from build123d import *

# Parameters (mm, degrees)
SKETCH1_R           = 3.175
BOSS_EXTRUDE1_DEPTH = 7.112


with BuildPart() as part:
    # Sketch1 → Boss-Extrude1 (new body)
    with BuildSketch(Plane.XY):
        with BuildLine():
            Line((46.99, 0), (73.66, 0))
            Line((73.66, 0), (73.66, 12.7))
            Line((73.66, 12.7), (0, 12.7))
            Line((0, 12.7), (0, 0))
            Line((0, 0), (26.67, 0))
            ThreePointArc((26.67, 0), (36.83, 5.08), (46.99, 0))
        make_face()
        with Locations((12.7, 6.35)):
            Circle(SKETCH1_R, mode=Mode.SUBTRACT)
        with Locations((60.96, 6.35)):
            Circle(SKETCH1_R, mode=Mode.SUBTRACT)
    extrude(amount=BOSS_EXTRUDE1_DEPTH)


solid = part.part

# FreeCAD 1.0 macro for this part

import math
import FreeCAD as App
import Part
import Sketcher

V = App.Vector
Q = App.Units.Quantity

doc = App.newDocument("Part")
params = doc.addObject("Spreadsheet::Sheet", "Params")
for row, (alias, value) in enumerate([
    ("sketch1_radius", "0.5 in"),
    ("sketch1_diameter", "0.25 in"),
    ("sketch1_width", "2.9 in"),
    ("sketch1_height", "0.5 in"),
    ("sketch1_width2", "1.05 in"),
    ("pad1_length", "0.28 in"),
], start=1):
    params.set(f"A{row}", alias)
    params.set(f"B{row}", "=" + value)
    params.setAlias(f"B{row}", alias)

body = doc.addObject("PartDesign::Body", "Body")

# Sketch on XY plane
sketch1 = body.newObject("Sketcher::SketchObject", "Sketch")
sketch1.AttachmentSupport = (doc.getObject("XY_Plane"), [""])
sketch1.MapMode = "FlatFace"
sketch1.addGeometry([
    Part.LineSegment(V(46.99, 0, 0), V(73.66, 0, 0)),  # 0
    Part.LineSegment(V(73.66, 0, 0), V(73.66, 12.7, 0)),  # 1
    Part.LineSegment(V(73.66, 12.7, 0), V(0, 12.7, 0)),  # 2
    Part.LineSegment(V(0, 12.7, 0), V(0, 0, 0)),  # 3
    Part.LineSegment(V(0, 0, 0), V(26.67, 0, 0)),  # 4
    Part.ArcOfCircle(Part.Circle(V(36.83, -7.62, 0), V(0, 0, 1), 12.7), math.radians(36.869898), math.radians(143.130102)),  # 5
    Part.Circle(V(12.7, 6.35, 0), V(0, 0, 1), 3.175),  # 6
    Part.Circle(V(60.96, 6.35, 0), V(0, 0, 1), 3.175),  # 7
], False)
sketch1.addConstraint([
    Sketcher.Constraint("Coincident", 0, 2, 1, 1),
    Sketcher.Constraint("Coincident", 1, 2, 2, 1),
    Sketcher.Constraint("Coincident", 2, 2, 3, 1),
    Sketcher.Constraint("Coincident", 3, 2, 4, 1),
    Sketcher.Constraint("Coincident", 4, 2, 5, 2),
    Sketcher.Constraint("Coincident", 5, 1, 0, 1),
    Sketcher.Constraint("Horizontal", 0),
    Sketcher.Constraint("Vertical", 1),
    Sketcher.Constraint("Horizontal", 2),
    Sketcher.Constraint("Vertical", 3),
    Sketcher.Constraint("Horizontal", 4),
    Sketcher.Constraint("Coincident", 3, 2, -1, 1),
    Sketcher.Constraint("Equal", 6, 7),
    Sketcher.Constraint("PointOnObject", 0, 2, -1),
    Sketcher.Constraint("Horizontal", 6, 3, 7, 3),
    Sketcher.Constraint("Equal", 0, 4),
    Sketcher.Constraint("Radius", 5, Q("0.5 in")),
    Sketcher.Constraint("Diameter", 6, Q("0.25 in")),
    Sketcher.Constraint("DistanceX", 2, 2, 2, 1, Q("2.9 in")),
    Sketcher.Constraint("DistanceY", 1, 1, 1, 2, Q("0.5 in")),
    Sketcher.Constraint("DistanceX", 0, 1, 0, 2, Q("1.05 in")),
    Sketcher.Constraint("DistanceX", -1, 1, 6, 3, Q("0.5 in")),
    Sketcher.Constraint("DistanceX", -1, 1, 7, 3, Q("2.4 in")),
    Sketcher.Constraint("DistanceY", -1, 1, 6, 3, Q("0.25 in")),
])
sketch1.setExpression("Constraints[16]", "Params.sketch1_radius")
sketch1.setExpression("Constraints[17]", "Params.sketch1_diameter")
sketch1.setExpression("Constraints[18]", "Params.sketch1_width")
sketch1.setExpression("Constraints[19]", "Params.sketch1_height")
sketch1.setExpression("Constraints[20]", "Params.sketch1_width2")
pad1 = body.newObject("PartDesign::Pad", "Pad")
pad1.Profile = sketch1
pad1.setExpression("Length", "Params.pad1_length")

doc.recompute()
